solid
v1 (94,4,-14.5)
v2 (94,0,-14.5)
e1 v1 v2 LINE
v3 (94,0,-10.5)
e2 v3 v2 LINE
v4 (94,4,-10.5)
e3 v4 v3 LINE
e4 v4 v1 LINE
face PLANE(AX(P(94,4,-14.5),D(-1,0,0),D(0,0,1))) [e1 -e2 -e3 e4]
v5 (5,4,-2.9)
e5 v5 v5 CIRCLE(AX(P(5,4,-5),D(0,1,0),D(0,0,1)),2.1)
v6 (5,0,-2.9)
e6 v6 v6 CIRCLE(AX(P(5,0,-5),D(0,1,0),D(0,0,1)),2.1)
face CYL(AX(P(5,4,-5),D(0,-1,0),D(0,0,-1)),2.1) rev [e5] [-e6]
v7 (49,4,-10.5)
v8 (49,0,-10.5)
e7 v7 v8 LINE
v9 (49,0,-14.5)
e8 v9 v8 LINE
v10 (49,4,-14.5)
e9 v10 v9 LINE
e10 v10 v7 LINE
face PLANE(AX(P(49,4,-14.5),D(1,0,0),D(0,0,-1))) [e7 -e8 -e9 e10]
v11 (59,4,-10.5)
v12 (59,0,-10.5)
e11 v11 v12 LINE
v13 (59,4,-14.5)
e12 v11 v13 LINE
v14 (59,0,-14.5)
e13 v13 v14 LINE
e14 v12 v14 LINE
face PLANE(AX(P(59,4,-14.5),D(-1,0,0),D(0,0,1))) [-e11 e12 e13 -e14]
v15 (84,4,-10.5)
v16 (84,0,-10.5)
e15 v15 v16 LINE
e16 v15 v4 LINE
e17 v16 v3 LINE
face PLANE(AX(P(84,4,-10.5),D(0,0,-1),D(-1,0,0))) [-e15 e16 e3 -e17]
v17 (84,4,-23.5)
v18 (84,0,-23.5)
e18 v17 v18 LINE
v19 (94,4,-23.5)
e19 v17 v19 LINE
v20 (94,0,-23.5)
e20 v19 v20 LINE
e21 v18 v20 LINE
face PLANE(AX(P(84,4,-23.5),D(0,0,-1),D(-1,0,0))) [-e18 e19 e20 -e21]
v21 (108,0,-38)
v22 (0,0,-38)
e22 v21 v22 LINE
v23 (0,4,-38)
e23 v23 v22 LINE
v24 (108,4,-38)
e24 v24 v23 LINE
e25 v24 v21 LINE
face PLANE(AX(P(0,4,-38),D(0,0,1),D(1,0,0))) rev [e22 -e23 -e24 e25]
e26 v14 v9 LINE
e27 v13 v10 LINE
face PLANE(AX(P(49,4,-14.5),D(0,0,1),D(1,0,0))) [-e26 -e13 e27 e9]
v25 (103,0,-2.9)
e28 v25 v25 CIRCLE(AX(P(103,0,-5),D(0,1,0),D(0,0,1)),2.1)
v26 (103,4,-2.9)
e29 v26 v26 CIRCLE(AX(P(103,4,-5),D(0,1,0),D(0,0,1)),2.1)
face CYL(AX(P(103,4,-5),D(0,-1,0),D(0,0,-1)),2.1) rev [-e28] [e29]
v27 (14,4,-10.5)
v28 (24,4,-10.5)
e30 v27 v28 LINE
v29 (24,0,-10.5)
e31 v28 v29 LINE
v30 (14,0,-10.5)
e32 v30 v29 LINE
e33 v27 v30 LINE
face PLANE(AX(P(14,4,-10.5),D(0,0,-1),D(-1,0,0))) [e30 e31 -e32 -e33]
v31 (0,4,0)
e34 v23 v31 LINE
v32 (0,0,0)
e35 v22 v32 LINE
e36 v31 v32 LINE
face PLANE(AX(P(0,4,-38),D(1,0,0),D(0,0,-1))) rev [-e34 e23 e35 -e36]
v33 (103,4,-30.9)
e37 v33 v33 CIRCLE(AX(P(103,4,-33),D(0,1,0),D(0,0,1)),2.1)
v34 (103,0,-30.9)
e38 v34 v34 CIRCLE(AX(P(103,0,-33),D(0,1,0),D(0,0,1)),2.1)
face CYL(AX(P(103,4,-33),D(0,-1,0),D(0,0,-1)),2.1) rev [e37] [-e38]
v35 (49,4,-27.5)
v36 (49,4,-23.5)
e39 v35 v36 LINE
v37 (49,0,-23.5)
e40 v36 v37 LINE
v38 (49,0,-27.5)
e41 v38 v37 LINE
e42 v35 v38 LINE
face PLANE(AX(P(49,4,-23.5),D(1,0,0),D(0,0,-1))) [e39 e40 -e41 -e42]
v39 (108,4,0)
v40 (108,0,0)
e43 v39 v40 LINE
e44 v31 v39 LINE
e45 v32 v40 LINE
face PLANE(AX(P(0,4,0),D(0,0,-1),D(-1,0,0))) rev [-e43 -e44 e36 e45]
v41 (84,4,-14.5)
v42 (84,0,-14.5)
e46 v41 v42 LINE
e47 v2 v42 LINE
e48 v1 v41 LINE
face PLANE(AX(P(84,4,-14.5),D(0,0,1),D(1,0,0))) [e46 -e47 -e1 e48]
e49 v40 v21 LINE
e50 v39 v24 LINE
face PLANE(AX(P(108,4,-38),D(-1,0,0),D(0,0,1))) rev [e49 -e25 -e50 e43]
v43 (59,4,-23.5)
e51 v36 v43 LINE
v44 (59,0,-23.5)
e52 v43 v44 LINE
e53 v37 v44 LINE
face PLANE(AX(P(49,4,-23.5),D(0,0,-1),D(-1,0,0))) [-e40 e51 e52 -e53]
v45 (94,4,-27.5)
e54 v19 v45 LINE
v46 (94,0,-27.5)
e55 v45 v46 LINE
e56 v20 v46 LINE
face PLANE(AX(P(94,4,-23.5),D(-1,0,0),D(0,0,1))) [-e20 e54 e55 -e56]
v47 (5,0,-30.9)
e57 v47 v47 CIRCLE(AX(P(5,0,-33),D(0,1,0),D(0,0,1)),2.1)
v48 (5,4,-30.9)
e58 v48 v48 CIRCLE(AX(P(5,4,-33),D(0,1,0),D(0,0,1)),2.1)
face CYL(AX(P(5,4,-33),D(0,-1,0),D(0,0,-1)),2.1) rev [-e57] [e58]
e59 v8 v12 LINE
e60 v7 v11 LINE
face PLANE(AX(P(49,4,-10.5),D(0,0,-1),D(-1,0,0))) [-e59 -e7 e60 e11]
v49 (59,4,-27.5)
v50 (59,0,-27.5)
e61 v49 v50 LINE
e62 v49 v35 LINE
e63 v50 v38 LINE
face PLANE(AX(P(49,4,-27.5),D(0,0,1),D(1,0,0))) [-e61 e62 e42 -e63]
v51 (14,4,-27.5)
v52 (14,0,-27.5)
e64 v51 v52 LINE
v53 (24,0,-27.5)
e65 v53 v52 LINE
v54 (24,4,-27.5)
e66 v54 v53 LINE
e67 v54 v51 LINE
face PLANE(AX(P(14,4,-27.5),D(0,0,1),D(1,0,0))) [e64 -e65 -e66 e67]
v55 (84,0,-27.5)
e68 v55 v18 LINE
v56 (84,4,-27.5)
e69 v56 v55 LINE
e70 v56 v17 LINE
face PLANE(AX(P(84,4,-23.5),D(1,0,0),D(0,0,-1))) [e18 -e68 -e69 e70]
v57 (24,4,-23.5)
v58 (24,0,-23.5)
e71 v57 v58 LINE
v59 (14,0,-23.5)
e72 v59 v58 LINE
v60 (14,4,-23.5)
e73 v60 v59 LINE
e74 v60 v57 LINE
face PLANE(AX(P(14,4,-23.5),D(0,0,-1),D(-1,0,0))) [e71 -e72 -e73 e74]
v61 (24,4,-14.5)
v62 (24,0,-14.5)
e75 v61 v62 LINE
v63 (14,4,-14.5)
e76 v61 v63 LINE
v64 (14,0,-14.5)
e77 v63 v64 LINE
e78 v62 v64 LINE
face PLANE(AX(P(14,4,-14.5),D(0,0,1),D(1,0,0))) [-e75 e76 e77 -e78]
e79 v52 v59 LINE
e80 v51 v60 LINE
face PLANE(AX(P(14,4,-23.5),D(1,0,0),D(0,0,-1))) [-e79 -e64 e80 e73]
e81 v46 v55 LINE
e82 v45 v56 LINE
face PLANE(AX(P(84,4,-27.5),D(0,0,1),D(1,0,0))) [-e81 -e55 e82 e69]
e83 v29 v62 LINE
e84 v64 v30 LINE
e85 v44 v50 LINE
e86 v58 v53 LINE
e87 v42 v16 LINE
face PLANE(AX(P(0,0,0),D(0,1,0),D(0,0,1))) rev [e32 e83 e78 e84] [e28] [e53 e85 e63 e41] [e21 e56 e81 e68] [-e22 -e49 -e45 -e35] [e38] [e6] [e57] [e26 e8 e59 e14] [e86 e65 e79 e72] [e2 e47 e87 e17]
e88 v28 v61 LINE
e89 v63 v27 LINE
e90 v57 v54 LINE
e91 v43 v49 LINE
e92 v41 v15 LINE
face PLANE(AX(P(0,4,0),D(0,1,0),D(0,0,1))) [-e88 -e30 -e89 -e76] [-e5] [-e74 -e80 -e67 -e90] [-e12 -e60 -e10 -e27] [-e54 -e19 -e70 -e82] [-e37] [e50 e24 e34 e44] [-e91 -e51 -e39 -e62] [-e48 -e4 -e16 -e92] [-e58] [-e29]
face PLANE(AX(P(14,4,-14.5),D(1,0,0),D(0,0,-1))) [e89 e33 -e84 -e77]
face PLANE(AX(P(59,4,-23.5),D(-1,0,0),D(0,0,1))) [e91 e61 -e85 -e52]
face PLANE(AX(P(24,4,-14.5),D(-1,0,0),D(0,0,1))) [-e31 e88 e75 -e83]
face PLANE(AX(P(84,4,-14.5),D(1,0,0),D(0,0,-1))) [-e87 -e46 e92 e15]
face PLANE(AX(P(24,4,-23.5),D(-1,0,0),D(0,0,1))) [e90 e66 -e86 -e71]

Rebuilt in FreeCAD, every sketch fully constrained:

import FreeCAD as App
import Part
import Sketcher

V = App.Vector
Q = App.Units.Quantity


def add_polygon(sketch, points):
    """Adds a closed chain of lines whose ends are joined by coincident constraints."""
    first, n = sketch.GeometryCount, len(points)
    for a, b in zip(points, points[1:] + points[:1]):
        sketch.addGeometry(Part.LineSegment(App.Vector(*a, 0), App.Vector(*b, 0)), False)
    for i in range(n):
        sketch.addConstraint(Sketcher.Constraint("Coincident", first + i, 2, first + (i + 1) % n, 1))

doc = App.newDocument("Part")
body = doc.addObject("PartDesign::Body", "Body")

sketch1 = doc.addObject("Sketcher::SketchObject", "Sketch")
body.addObject(sketch1)
sketch1.AttachmentSupport = (doc.XZ_Plane, [""])
sketch1.MapMode = "FlatFace"
add_polygon(sketch1, [(0, -38), (0, 0), (108, 0), (108, -38)])
sketch1.addGeometry(Part.Circle(V(5, -5, 0), V(0, 0, 1), 2.1), False)
add_polygon(sketch1, [(24, -10.5), (14, -10.5), (14, -14.5), (24, -14.5)])
sketch1.addGeometry(Part.Circle(V(103, -5, 0), V(0, 0, 1), 2.1), False)
add_polygon(sketch1, [(59, -10.5), (49, -10.5), (49, -14.5), (59, -14.5)])
add_polygon(sketch1, [(94, -10.5), (84, -10.5), (84, -14.5), (94, -14.5)])
add_polygon(sketch1, [(24, -23.5), (14, -23.5), (14, -27.5), (24, -27.5)])
sketch1.addGeometry(Part.Circle(V(5, -33, 0), V(0, 0, 1), 2.1), False)
add_polygon(sketch1, [(59, -23.5), (49, -23.5), (49, -27.5), (59, -27.5)])
add_polygon(sketch1, [(94, -23.5), (84, -23.5), (84, -27.5), (94, -27.5)])
sketch1.addGeometry(Part.Circle(V(103, -33, 0), V(0, 0, 1), 2.1), False)
sketch1.addConstraint([
    Sketcher.Constraint("Vertical", 0),
    Sketcher.Constraint("Horizontal", 1),
    Sketcher.Constraint("Vertical", 2),
    Sketcher.Constraint("Horizontal", 3),
    Sketcher.Constraint("Horizontal", 5),
    Sketcher.Constraint("Vertical", 6),
    Sketcher.Constraint("Horizontal", 7),
    Sketcher.Constraint("Vertical", 8),
    Sketcher.Constraint("Horizontal", 10),
    Sketcher.Constraint("Vertical", 11),
    Sketcher.Constraint("Horizontal", 12),
    Sketcher.Constraint("Vertical", 13),
    Sketcher.Constraint("Horizontal", 14),
    Sketcher.Constraint("Vertical", 15),
    Sketcher.Constraint("Horizontal", 16),
    Sketcher.Constraint("Vertical", 17),
    Sketcher.Constraint("Horizontal", 18),
    Sketcher.Constraint("Vertical", 19),
    Sketcher.Constraint("Horizontal", 20),
    Sketcher.Constraint("Vertical", 21),
    Sketcher.Constraint("Horizontal", 23),
    Sketcher.Constraint("Vertical", 24),
    Sketcher.Constraint("Horizontal", 25),
    Sketcher.Constraint("Vertical", 26),
    Sketcher.Constraint("Horizontal", 27),
    Sketcher.Constraint("Vertical", 28),
    Sketcher.Constraint("Horizontal", 29),
    Sketcher.Constraint("Vertical", 30),
    Sketcher.Constraint("Coincident", 0, 2, -1, 1),
    Sketcher.Constraint("Equal", 4, 9),
    Sketcher.Constraint("Equal", 9, 22),
    Sketcher.Constraint("Equal", 22, 31),
    Sketcher.Constraint("Horizontal", 4, 3, 9, 3),
    Sketcher.Constraint("Horizontal", 22, 3, 31, 3),
    Sketcher.Constraint("Horizontal", 8, 2, 10, 2),
    Sketcher.Constraint("Horizontal", 7, 2, 11, 2),
    Sketcher.Constraint("Horizontal", 13, 2, 14, 2),
    Sketcher.Constraint("Horizontal", 12, 2, 15, 2),
    Sketcher.Constraint("Horizontal", 21, 2, 23, 2),
    Sketcher.Constraint("Horizontal", 20, 2, 24, 2),
    Sketcher.Constraint("Horizontal", 26, 2, 27, 2),
    Sketcher.Constraint("Horizontal", 25, 2, 28, 2),
    Sketcher.Constraint("Vertical", 4, 3, 22, 3),
    Sketcher.Constraint("Vertical", 9, 3, 31, 3),
    Sketcher.Constraint("Vertical", 6, 2, 18, 2),
    Sketcher.Constraint("Vertical", 8, 2, 20, 2),
    Sketcher.Constraint("Vertical", 11, 2, 23, 2),
    Sketcher.Constraint("Vertical", 13, 2, 25, 2),
    Sketcher.Constraint("Vertical", 15, 2, 27, 2),
    Sketcher.Constraint("Vertical", 17, 2, 29, 2),
    Sketcher.Constraint("Equal", 7, 10),
    Sketcher.Constraint("Equal", 12, 14),
    Sketcher.Constraint("Equal", 17, 19),
    Sketcher.Constraint("Diameter", 4, Q("4.2 mm")),
    Sketcher.Constraint("DistanceX", 1, 1, 1, 2, Q("108 mm")),
    Sketcher.Constraint("DistanceX", 5, 2, 5, 1, Q("10 mm")),
    Sketcher.Constraint("DistanceY", 0, 1, 0, 2, Q("38 mm")),
    Sketcher.Constraint("DistanceY", 6, 2, 6, 1, Q("4 mm")),
    Sketcher.Constraint("DistanceX", -1, 1, 4, 3, Q("5 mm")),
    Sketcher.Constraint("DistanceY", 4, 3, -1, 1, Q("5 mm")),
    Sketcher.Constraint("DistanceX", -1, 1, 9, 3, Q("103 mm")),
    Sketcher.Constraint("DistanceY", 22, 3, -1, 1, Q("33 mm")),
    Sketcher.Constraint("DistanceX", -1, 1, 5, 2, Q("14 mm")),
    Sketcher.Constraint("DistanceX", -1, 1, 10, 2, Q("49 mm")),
    Sketcher.Constraint("DistanceX", -1, 1, 14, 2, Q("84 mm")),
    Sketcher.Constraint("DistanceY", 18, 2, 6, 2, Q("9 mm")),
    Sketcher.Constraint("DistanceY", 5, 2, -1, 1, Q("10.5 mm")),
])
pad1 = doc.addObject("PartDesign::Pad", "Pad")
body.addObject(pad1)
pad1.Profile = sketch1
pad1.Length = 4
pad1.Reversed = True

doc.recompute()
